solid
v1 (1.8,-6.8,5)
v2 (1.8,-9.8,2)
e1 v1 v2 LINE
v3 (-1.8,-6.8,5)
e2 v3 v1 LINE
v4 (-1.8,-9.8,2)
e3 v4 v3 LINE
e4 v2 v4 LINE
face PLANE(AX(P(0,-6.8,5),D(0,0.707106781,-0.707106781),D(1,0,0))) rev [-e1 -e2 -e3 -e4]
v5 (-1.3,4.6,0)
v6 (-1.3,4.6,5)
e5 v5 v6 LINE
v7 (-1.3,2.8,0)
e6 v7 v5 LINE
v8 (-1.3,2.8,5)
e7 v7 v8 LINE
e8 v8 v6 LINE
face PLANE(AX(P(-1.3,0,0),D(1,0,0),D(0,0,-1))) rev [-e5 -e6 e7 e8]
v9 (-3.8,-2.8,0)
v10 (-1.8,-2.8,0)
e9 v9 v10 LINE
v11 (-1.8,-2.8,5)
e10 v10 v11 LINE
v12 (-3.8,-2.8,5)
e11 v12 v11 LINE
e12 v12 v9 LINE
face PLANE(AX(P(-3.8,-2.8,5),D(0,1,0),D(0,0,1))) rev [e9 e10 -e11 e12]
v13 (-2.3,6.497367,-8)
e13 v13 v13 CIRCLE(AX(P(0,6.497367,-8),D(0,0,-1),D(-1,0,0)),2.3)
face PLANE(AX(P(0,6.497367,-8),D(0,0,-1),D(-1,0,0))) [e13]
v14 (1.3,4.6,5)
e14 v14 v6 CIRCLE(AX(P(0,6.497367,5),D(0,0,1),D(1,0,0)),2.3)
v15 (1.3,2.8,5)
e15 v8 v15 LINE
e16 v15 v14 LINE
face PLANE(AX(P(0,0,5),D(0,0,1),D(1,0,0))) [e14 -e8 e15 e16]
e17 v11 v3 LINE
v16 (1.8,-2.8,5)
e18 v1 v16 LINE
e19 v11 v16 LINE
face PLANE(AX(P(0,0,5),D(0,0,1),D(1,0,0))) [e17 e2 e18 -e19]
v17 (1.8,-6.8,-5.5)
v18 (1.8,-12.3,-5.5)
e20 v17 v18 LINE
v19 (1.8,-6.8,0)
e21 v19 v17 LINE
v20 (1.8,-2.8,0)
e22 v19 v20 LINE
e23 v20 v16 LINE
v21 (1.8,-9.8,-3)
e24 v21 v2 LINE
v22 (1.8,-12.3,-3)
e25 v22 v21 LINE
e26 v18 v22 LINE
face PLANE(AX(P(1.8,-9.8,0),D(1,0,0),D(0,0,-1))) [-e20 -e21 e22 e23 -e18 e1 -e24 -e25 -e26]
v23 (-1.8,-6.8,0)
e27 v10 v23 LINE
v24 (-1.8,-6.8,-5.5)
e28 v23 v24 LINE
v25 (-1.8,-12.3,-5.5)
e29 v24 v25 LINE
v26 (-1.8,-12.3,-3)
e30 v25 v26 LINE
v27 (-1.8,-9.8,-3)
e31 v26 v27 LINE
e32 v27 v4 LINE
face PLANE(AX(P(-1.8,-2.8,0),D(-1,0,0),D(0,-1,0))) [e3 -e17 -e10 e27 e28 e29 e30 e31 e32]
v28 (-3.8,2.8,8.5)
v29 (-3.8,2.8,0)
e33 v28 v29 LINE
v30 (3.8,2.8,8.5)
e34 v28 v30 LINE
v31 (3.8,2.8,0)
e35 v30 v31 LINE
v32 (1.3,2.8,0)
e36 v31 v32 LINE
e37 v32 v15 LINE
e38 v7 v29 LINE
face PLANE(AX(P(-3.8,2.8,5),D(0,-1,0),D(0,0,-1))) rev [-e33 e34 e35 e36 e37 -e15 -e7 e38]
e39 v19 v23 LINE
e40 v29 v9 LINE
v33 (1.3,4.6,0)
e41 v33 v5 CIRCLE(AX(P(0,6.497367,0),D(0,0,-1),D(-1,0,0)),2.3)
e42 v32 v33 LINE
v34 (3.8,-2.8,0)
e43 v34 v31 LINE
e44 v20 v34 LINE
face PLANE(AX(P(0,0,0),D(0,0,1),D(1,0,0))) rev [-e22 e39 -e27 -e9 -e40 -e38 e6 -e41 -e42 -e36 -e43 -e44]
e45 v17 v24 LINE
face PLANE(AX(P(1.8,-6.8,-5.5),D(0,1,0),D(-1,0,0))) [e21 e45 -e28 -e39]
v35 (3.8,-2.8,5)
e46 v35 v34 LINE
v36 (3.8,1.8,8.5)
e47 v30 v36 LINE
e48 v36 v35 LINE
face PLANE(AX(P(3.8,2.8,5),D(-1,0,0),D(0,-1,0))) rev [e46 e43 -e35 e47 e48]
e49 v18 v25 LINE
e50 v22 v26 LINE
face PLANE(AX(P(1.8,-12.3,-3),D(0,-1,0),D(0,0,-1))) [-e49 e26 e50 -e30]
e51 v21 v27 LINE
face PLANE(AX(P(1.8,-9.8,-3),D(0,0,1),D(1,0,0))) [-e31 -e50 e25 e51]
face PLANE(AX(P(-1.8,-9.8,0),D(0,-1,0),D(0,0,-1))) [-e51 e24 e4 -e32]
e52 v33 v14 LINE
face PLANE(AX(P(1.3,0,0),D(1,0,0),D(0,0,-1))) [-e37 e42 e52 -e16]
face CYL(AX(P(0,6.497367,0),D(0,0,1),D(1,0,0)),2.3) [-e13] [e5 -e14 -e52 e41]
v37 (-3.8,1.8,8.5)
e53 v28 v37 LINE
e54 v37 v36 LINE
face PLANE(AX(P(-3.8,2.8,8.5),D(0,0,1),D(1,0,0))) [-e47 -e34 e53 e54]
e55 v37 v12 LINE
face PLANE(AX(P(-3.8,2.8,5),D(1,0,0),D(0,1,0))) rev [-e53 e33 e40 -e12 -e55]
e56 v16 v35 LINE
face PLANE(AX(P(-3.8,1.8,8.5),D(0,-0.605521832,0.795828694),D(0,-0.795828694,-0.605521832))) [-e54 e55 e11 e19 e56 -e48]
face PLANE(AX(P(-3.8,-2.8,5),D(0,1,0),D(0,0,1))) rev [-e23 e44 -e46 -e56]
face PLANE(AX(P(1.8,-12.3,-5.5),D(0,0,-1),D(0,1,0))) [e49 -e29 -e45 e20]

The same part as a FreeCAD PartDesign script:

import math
import FreeCAD as App
import Part
import Sketcher

V = App.Vector


def edges_at(feature, points):
    """Names of the edges that pass closest to the given points."""
    edges = feature.Shape.Edges
    near = lambda p: min(range(len(edges)), key=lambda i: edges[i].distToShape(Part.Vertex(*p))[0])
    return sorted({f"Edge{near(p) + 1}" for p in points})


def add_polygon(sketch, points):
    """Adds a closed chain of lines whose ends are joined by coincident constraints."""
    first, n = sketch.GeometryCount, len(points)
    for a, b in zip(points, points[1:] + points[:1]):
        sketch.addGeometry(Part.LineSegment(App.Vector(*a, 0), App.Vector(*b, 0)), False)
    for i in range(n):
        sketch.addConstraint(Sketcher.Constraint("Coincident", first + i, 2, first + (i + 1) % n, 1))

doc = App.newDocument("Part")
body = doc.addObject("PartDesign::Body", "Body")

# Sketch on XY plane
sketch1 = body.newObject("Sketcher::SketchObject", "Sketch")
sketch1.AttachmentSupport = (doc.getObject("XY_Plane"), [""])
sketch1.MapMode = "FlatFace"
add_polygon(sketch1, [(-4, 3), (-4, -3), (4, -3), (4, 3)])  # lines 0-3
sketch1.addConstraint([
    Sketcher.Constraint("Vertical", 0),
    Sketcher.Constraint("Horizontal", 1),
    Sketcher.Constraint("Vertical", 2),
    Sketcher.Constraint("Horizontal", 3),
    Sketcher.Constraint("Symmetric", 0, 2, 2, 2, -1, 1),
    Sketcher.Constraint("DistanceX", 1, 1, 1, 2, 7.6),
    Sketcher.Constraint("DistanceY", 0, 2, 0, 1, 5.6),
])
pad1 = body.newObject("PartDesign::Pad", "Pad")
pad1.Profile = sketch1
pad1.Length = 5

# Sketch on XY plane
sketch2 = body.newObject("Sketcher::SketchObject", "Sketch001")
sketch2.AttachmentSupport = (doc.getObject("XY_Plane"), [""])
sketch2.MapMode = "FlatFace"
sketch2.AttachmentOffset = App.Placement(V(0, 0, 5), App.Rotation())
sketch2.addGeometry([
    Part.ArcOfCircle(Part.Circle(V(0, 6.5, 0), V(0, 0, 1), 2.3), math.radians(-56), math.radians(236)),
    Part.LineSegment(V(-1.3, 4.6, 0), V(-1.3, 2.8, 0)),
    Part.LineSegment(V(-1.3, 2.8, 0), V(1.3, 2.8, 0)),
    Part.LineSegment(V(1.3, 2.8, 0), V(1.3, 4.6, 0)),
], False)
sketch2.addConstraint([
    Sketcher.Constraint("Coincident", 0, 2, 1, 1),
    Sketcher.Constraint("Coincident", 1, 2, 2, 1),
    Sketcher.Constraint("Coincident", 2, 2, 3, 1),
    Sketcher.Constraint("Coincident", 3, 2, 0, 1),
    Sketcher.Constraint("Vertical", 1),
    Sketcher.Constraint("Horizontal", 2),
    Sketcher.Constraint("Vertical", 3),
    Sketcher.Constraint("Symmetric", 0, 2, 3, 2, -2),
    Sketcher.Constraint("Radius", 0, 2.3),
    Sketcher.Constraint("DistanceX", 2, 1, 2, 2, 2.6),
    Sketcher.Constraint("DistanceY", 1, 2, 1, 1, 1.8),
    Sketcher.Constraint("DistanceY", -1, 1, 0, 2, 4.6),
])
pad2 = body.newObject("PartDesign::Pad", "Pad001")
pad2.Profile = sketch2
pad2.Length = 5
pad2.Reversed = True

# Sketch on XY plane
sketch3 = body.newObject("Sketcher::SketchObject", "Sketch002")
sketch3.AttachmentSupport = (doc.getObject("XY_Plane"), [""])
sketch3.MapMode = "FlatFace"
sketch3.AttachmentOffset = App.Placement(V(0, 0, 5), App.Rotation())
add_polygon(sketch3, [(-1.8, -2.8), (-1.8, -9.8), (1.8, -9.8), (1.8, -2.8)])  # lines 0-3
sketch3.addConstraint([
    Sketcher.Constraint("Vertical", 0),
    Sketcher.Constraint("Horizontal", 1),
    Sketcher.Constraint("Vertical", 2),
    Sketcher.Constraint("Horizontal", 3),
    Sketcher.Constraint("DistanceY", 0, 2, 0, 1, 7.0),
    Sketcher.Constraint("DistanceX", 1, 1, 1, 2, 3.6),
    Sketcher.Constraint("DistanceX", 0, 2, -1, 1, 1.8),
    Sketcher.Constraint("DistanceY", 0, 2, -1, 1, 9.8),
])
pad3 = body.newObject("PartDesign::Pad", "Pad002")
pad3.Profile = sketch3
pad3.Length = 5
pad3.Reversed = True

# Sketch on XY plane
sketch4 = body.newObject("Sketcher::SketchObject", "Sketch003")
sketch4.AttachmentSupport = (doc.getObject("XY_Plane"), [""])
sketch4.MapMode = "FlatFace"
sketch4.addGeometry(Part.Circle(V(0, 6.5, 0), V(0, 0, 1), 2.3), False)
sketch4.addConstraint([
    Sketcher.Constraint("PointOnObject", 0, 3, -2),
    Sketcher.Constraint("Diameter", 0, 4.6),
    Sketcher.Constraint("DistanceY", -1, 1, 0, 3, 6.497367),
])
pad4 = body.newObject("PartDesign::Pad", "Pad003")
pad4.Profile = sketch4
pad4.Length = 8
pad4.Reversed = True
doc.recompute()

chamfer = body.newObject("PartDesign::Chamfer", "Chamfer")
chamfer.Base = (pad4, edges_at(pad4, [(0, -9.8, 5)]))
chamfer.Size = 3

# Sketch on YZ plane
sketch5 = body.newObject("Sketcher::SketchObject", "Sketch004")
sketch5.AttachmentSupport = (doc.getObject("YZ_Plane"), [""])
sketch5.MapMode = "FlatFace"
sketch5.AttachmentOffset = App.Placement(V(0, 0, 3.8), App.Rotation())
add_polygon(sketch5, [(2.8, 5), (2.8, 8.5), (1.8, 8.5), (-2.8, 5)])  # lines 0-3
sketch5.addConstraint([
    Sketcher.Constraint("Vertical", 0),
    Sketcher.Constraint("Horizontal", 1),
    Sketcher.Constraint("Horizontal", 3),
    Sketcher.Constraint("DistanceX", 1, 2, 1, 1, 1.0),
    Sketcher.Constraint("DistanceX", 3, 1, 3, 2, 5.6),
    Sketcher.Constraint("DistanceY", 0, 1, 0, 2, 3.5),
    Sketcher.Constraint("DistanceY", -1, 1, 2, 2, 5.0),
    Sketcher.Constraint("DistanceX", -1, 1, 0, 2, 2.8),
])
pad5 = body.newObject("PartDesign::Pad", "Pad004")
pad5.Profile = sketch5
pad5.Length = 7.6
pad5.Reversed = True

# Sketch on YZ plane
sketch6 = body.newObject("Sketcher::SketchObject", "Sketch005")
sketch6.AttachmentSupport = (doc.getObject("YZ_Plane"), [""])
sketch6.MapMode = "FlatFace"
sketch6.AttachmentOffset = App.Placement(V(0, 0, -1.8), App.Rotation())
add_polygon(sketch6, [(-9.8, -3), (-9.8, 0), (-6.8, 0), (-6.8, -5.5), (-12.3, -5.5), (-12.3, -3)])  # lines 0-5
sketch6.addConstraint([
    Sketcher.Constraint("Vertical", 0),
    Sketcher.Constraint("Horizontal", 1),
    Sketcher.Constraint("Vertical", 2),
    Sketcher.Constraint("Horizontal", 3),
    Sketcher.Constraint("Vertical", 4),
    Sketcher.Constraint("Horizontal", 5),
    Sketcher.Constraint("PointOnObject", 0, 2, -1),
    Sketcher.Constraint("Equal", 1, 0),
    Sketcher.Constraint("Equal", 3, 2),
    Sketcher.Constraint("DistanceX", 1, 1, 1, 2, 3.0),
    Sketcher.Constraint("DistanceX", 3, 2, 3, 1, 5.5),
    Sketcher.Constraint("DistanceX", 0, 2, -1, 1, 9.8),
])
pad6 = body.newObject("PartDesign::Pad", "Pad005")
pad6.Profile = sketch6
pad6.Length = 3.6

doc.recompute()
